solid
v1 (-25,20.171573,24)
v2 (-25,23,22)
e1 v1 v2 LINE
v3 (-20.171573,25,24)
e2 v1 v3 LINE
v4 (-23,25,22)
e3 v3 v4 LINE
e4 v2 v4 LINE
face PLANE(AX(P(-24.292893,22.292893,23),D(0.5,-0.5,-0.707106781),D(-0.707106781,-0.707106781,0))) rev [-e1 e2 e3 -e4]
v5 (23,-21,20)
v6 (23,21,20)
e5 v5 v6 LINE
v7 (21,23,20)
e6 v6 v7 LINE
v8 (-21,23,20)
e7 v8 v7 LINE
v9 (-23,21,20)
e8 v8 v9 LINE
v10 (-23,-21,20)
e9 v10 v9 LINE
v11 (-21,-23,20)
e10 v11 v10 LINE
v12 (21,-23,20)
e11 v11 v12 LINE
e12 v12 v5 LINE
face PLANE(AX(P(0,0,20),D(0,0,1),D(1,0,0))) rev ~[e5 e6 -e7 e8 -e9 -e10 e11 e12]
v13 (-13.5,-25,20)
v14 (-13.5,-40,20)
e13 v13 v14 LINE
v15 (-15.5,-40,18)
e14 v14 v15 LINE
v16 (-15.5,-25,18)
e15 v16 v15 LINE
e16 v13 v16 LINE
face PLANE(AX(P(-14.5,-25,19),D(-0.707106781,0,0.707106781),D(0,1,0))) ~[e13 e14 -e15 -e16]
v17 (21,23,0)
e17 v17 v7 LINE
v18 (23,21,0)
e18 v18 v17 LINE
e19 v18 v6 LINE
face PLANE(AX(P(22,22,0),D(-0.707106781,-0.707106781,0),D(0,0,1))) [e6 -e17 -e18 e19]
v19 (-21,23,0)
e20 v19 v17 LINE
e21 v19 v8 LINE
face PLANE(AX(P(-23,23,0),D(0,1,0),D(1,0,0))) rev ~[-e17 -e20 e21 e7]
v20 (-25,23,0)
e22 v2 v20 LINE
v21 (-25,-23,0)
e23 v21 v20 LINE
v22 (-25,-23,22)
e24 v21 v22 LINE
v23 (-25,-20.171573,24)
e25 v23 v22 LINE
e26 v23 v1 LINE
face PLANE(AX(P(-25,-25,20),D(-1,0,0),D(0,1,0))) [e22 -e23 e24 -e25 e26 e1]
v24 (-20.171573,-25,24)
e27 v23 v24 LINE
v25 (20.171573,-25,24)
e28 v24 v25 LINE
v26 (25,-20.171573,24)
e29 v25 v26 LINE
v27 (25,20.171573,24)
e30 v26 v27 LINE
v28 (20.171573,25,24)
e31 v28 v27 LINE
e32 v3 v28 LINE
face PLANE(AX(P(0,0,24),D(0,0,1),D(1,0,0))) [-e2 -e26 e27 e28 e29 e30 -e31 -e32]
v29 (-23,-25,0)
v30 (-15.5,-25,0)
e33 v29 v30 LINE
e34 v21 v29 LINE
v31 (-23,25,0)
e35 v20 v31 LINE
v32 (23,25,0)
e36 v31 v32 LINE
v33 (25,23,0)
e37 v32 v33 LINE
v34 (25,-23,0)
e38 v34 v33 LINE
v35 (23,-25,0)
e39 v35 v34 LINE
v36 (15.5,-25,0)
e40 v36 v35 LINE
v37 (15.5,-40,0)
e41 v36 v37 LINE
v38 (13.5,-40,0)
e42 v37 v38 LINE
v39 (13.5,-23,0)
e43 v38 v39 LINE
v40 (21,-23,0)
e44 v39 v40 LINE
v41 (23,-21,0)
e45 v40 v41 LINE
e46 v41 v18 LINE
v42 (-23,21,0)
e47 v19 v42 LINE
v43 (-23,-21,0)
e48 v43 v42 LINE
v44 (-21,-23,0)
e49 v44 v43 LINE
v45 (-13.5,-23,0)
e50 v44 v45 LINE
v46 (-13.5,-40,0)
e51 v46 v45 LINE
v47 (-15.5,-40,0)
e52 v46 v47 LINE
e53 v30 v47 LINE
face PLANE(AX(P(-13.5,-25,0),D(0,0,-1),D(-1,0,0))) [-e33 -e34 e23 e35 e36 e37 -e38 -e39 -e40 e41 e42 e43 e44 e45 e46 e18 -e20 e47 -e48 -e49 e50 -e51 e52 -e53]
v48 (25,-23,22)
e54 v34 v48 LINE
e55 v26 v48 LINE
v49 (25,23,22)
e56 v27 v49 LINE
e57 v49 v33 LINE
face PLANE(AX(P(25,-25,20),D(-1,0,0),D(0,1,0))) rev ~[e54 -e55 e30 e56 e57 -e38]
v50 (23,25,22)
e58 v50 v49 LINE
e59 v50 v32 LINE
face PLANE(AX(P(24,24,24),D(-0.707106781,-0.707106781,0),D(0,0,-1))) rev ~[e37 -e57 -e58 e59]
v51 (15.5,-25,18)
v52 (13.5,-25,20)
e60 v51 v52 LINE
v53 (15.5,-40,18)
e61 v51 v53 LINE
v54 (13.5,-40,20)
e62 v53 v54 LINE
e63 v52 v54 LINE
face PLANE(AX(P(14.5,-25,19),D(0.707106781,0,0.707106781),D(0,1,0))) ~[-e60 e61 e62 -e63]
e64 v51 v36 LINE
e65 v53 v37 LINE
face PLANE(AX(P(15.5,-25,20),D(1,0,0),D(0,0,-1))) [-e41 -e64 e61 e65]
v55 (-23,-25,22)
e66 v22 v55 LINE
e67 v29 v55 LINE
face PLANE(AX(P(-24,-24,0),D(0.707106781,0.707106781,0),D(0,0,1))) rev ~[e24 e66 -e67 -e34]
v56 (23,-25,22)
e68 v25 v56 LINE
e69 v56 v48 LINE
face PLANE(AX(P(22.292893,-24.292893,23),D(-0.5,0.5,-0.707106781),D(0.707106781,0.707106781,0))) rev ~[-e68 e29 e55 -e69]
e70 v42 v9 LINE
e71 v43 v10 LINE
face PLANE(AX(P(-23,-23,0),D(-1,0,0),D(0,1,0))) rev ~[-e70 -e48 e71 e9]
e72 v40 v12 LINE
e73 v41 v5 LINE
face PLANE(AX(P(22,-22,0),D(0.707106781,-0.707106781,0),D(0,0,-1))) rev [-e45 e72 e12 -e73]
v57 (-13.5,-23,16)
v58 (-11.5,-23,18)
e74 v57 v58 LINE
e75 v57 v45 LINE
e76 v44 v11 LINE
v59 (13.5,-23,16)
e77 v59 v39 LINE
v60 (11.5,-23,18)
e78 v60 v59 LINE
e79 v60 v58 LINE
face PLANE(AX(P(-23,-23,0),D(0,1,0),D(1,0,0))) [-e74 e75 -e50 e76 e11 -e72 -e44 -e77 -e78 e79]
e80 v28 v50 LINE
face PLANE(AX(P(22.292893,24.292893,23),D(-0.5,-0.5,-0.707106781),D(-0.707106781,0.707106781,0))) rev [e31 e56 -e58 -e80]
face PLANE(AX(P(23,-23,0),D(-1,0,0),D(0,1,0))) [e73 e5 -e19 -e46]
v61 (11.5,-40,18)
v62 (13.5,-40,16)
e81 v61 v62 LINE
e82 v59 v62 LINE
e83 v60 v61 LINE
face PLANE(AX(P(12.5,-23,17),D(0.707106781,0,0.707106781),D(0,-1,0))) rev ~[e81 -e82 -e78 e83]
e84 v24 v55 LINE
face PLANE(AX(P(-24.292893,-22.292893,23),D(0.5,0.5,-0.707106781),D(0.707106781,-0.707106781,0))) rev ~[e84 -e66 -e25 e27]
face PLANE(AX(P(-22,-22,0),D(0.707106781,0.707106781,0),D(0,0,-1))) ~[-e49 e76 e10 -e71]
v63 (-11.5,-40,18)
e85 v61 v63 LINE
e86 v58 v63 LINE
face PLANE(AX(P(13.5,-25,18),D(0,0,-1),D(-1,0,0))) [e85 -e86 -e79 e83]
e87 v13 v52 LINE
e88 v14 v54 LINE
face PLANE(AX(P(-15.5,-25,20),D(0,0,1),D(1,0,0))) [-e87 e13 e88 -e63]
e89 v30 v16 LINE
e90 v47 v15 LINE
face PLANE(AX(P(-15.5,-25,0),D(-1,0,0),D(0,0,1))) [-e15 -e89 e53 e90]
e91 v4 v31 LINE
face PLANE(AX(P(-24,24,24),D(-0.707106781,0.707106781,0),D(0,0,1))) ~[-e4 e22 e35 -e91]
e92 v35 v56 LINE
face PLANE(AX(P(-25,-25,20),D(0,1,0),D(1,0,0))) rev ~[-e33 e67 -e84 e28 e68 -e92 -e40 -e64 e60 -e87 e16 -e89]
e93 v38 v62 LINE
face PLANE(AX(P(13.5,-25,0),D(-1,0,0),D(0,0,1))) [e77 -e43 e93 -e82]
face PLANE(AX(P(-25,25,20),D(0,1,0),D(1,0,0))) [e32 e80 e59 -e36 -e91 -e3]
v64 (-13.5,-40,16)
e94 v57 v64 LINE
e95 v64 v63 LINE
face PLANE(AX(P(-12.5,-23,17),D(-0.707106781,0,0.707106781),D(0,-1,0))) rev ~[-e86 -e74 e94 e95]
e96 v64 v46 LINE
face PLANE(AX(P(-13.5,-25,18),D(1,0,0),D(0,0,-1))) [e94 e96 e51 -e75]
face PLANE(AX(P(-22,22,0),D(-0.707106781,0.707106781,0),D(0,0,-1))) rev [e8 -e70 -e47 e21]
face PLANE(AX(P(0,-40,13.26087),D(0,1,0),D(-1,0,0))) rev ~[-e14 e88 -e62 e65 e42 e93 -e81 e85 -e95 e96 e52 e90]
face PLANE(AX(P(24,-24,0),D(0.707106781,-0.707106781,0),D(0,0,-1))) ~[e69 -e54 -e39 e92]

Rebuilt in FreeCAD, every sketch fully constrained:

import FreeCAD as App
import Part
import Sketcher
Q = App.Units.Quantity


def edges_at(feature, points):
    """Names of the edges that pass closest to the given points."""
    edges = feature.Shape.Edges
    near = lambda p: min(range(len(edges)), key=lambda i: edges[i].distToShape(Part.Vertex(*p))[0])
    return sorted({f"Edge{near(p) + 1}" for p in points})

doc = App.newDocument("Part")
body = doc.addObject("PartDesign::Body", "Body")

# Sketch on XY plane
sketch1 = body.newObject("Sketcher::SketchObject", "Sketch")
sketch1.AttachmentSupport = (doc.getObject("XY_Plane"), [""])
sketch1.MapMode = "FlatFace"
sketch1.addGeometry(Part.LineSegment(App.Vector(-25, 25, 0), App.Vector(-25, -25, 0)), False)
sketch1.addGeometry(Part.LineSegment(App.Vector(-25, -25, 0), App.Vector(25, -25, 0)), False)
sketch1.addGeometry(Part.LineSegment(App.Vector(25, -25, 0), App.Vector(25, 25, 0)), False)
sketch1.addGeometry(Part.LineSegment(App.Vector(25, 25, 0), App.Vector(-25, 25, 0)), False)
sketch1.addGeometry(Part.LineSegment(App.Vector(23, -23, 0), App.Vector(-23, -23, 0)), False)
sketch1.addGeometry(Part.LineSegment(App.Vector(-23, -23, 0), App.Vector(-23, 23, 0)), False)
sketch1.addGeometry(Part.LineSegment(App.Vector(-23, 23, 0), App.Vector(23, 23, 0)), False)
sketch1.addGeometry(Part.LineSegment(App.Vector(23, 23, 0), App.Vector(23, -23, 0)), False)
sketch1.addConstraint(Sketcher.Constraint("Coincident", 0, 2, 1, 1))
sketch1.addConstraint(Sketcher.Constraint("Coincident", 1, 2, 2, 1))
sketch1.addConstraint(Sketcher.Constraint("Coincident", 2, 2, 3, 1))
sketch1.addConstraint(Sketcher.Constraint("Coincident", 3, 2, 0, 1))
sketch1.addConstraint(Sketcher.Constraint("Coincident", 4, 2, 5, 1))
sketch1.addConstraint(Sketcher.Constraint("Coincident", 5, 2, 6, 1))
sketch1.addConstraint(Sketcher.Constraint("Coincident", 6, 2, 7, 1))
sketch1.addConstraint(Sketcher.Constraint("Coincident", 7, 2, 4, 1))
sketch1.addConstraint(Sketcher.Constraint("Vertical", 0))
sketch1.addConstraint(Sketcher.Constraint("Horizontal", 1))
sketch1.addConstraint(Sketcher.Constraint("Vertical", 2))
sketch1.addConstraint(Sketcher.Constraint("Horizontal", 3))
sketch1.addConstraint(Sketcher.Constraint("Horizontal", 4))
sketch1.addConstraint(Sketcher.Constraint("Vertical", 5))
sketch1.addConstraint(Sketcher.Constraint("Horizontal", 6))
sketch1.addConstraint(Sketcher.Constraint("Vertical", 7))
sketch1.addConstraint(Sketcher.Constraint("Symmetric", 0, 2, 2, 2, -1, 1))
sketch1.addConstraint(Sketcher.Constraint("Symmetric", 4, 2, 6, 2, -1, 1))
sketch1.addConstraint(Sketcher.Constraint("Equal", 3, 0))
sketch1.addConstraint(Sketcher.Constraint("Equal", 6, 5))
sketch1.addConstraint(Sketcher.Constraint("DistanceX", 1, 1, 1, 2, Q("50 mm")))
sketch1.addConstraint(Sketcher.Constraint("DistanceX", 4, 2, 4, 1, Q("46 mm")))
pad1 = body.newObject("PartDesign::Pad", "Pad")
pad1.Profile = sketch1
pad1.Length = 20

# Sketch on XY plane
sketch2 = body.newObject("Sketcher::SketchObject", "Sketch001")
sketch2.AttachmentSupport = (doc.getObject("XY_Plane"), [""])
sketch2.MapMode = "FlatFace"
sketch2.AttachmentOffset = App.Placement(App.Vector(0, 0, 20), App.Rotation())
sketch2.addGeometry(Part.LineSegment(App.Vector(-25, 25, 0), App.Vector(-25, -25, 0)), False)
sketch2.addGeometry(Part.LineSegment(App.Vector(-25, -25, 0), App.Vector(25, -25, 0)), False)
sketch2.addGeometry(Part.LineSegment(App.Vector(25, -25, 0), App.Vector(25, 25, 0)), False)
sketch2.addGeometry(Part.LineSegment(App.Vector(25, 25, 0), App.Vector(-25, 25, 0)), False)
sketch2.addConstraint(Sketcher.Constraint("Coincident", 0, 2, 1, 1))
sketch2.addConstraint(Sketcher.Constraint("Coincident", 1, 2, 2, 1))
sketch2.addConstraint(Sketcher.Constraint("Coincident", 2, 2, 3, 1))
sketch2.addConstraint(Sketcher.Constraint("Coincident", 3, 2, 0, 1))
sketch2.addConstraint(Sketcher.Constraint("Vertical", 0))
sketch2.addConstraint(Sketcher.Constraint("Horizontal", 1))
sketch2.addConstraint(Sketcher.Constraint("Vertical", 2))
sketch2.addConstraint(Sketcher.Constraint("Horizontal", 3))
sketch2.addConstraint(Sketcher.Constraint("Symmetric", 0, 2, 2, 2, -1, 1))
sketch2.addConstraint(Sketcher.Constraint("Equal", 3, 0))
sketch2.addConstraint(Sketcher.Constraint("DistanceX", 1, 1, 1, 2, Q("50 mm")))
pad2 = body.newObject("PartDesign::Pad", "Pad001")
pad2.Profile = sketch2
pad2.Length = 4

# Sketch on XZ plane
sketch3 = body.newObject("Sketcher::SketchObject", "Sketch002")
sketch3.AttachmentSupport = (doc.getObject("XZ_Plane"), [""])
sketch3.MapMode = "FlatFace"
sketch3.AttachmentOffset = App.Placement(App.Vector(0, 0, 25), App.Rotation())
sketch3.addGeometry(Part.LineSegment(App.Vector(-14, 18, 0), App.Vector(-14, 0, 0)), False)
sketch3.addGeometry(Part.LineSegment(App.Vector(-14, 0, 0), App.Vector(14, 0, 0)), False)
sketch3.addGeometry(Part.LineSegment(App.Vector(14, 0, 0), App.Vector(14, 18, 0)), False)
sketch3.addGeometry(Part.LineSegment(App.Vector(14, 18, 0), App.Vector(-14, 18, 0)), False)
sketch3.addConstraint(Sketcher.Constraint("Coincident", 0, 2, 1, 1))
sketch3.addConstraint(Sketcher.Constraint("Coincident", 1, 2, 2, 1))
sketch3.addConstraint(Sketcher.Constraint("Coincident", 2, 2, 3, 1))
sketch3.addConstraint(Sketcher.Constraint("Coincident", 3, 2, 0, 1))
sketch3.addConstraint(Sketcher.Constraint("Vertical", 0))
sketch3.addConstraint(Sketcher.Constraint("Horizontal", 1))
sketch3.addConstraint(Sketcher.Constraint("Vertical", 2))
sketch3.addConstraint(Sketcher.Constraint("Horizontal", 3))
sketch3.addConstraint(Sketcher.Constraint("Symmetric", 0, 2, 1, 2, -1, 1))
sketch3.addConstraint(Sketcher.Constraint("DistanceX", 1, 1, 1, 2, Q("27 mm")))
sketch3.addConstraint(Sketcher.Constraint("DistanceY", 0, 2, 0, 1, Q("18 mm")))
pocket1 = body.newObject("PartDesign::Pocket", "Pocket")
pocket1.Profile = sketch3
pocket1.Length = 5
doc.recompute()

chamfer = body.newObject("PartDesign::Chamfer", "Chamfer")
chamfer.Base = (pocket1, edges_at(pocket1, [
    (-25, -25, 12),
    (-25, -25, 12),
    (25, -25, 12),
    (25, -25, 12),
    (25, 25, 12),
    (25, 25, 12),
    (-25, 25, 12),
    (-25, 25, 12),
    (-23, 23, 10),
    (23, -23, 10),
    (23, 23, 10),
    (-23, -23, 10),
]))
chamfer.Size = 2
doc.recompute()

chamfer2 = body.newObject("PartDesign::Chamfer", "Chamfer001")
chamfer2.Base = (chamfer, edges_at(chamfer, [
    (24, -24, 24),
    (-24, -24, 24),
    (24, 24, 24),
    (-24, 24, 24),
]))
chamfer2.Size = 2

# Sketch on XZ plane
sketch4 = body.newObject("Sketcher::SketchObject", "Sketch003")
sketch4.AttachmentSupport = (doc.getObject("XZ_Plane"), [""])
sketch4.MapMode = "FlatFace"
sketch4.AttachmentOffset = App.Placement(App.Vector(0, 0, 25), App.Rotation())
sketch4.addGeometry(Part.LineSegment(App.Vector(-13.5, 0, 0), App.Vector(-13.5, 18, 0)), False)
sketch4.addGeometry(Part.LineSegment(App.Vector(-13.5, 18, 0), App.Vector(13.5, 18, 0)), False)
sketch4.addGeometry(Part.LineSegment(App.Vector(13.5, 18, 0), App.Vector(13.5, 0, 0)), False)
sketch4.addGeometry(Part.LineSegment(App.Vector(13.5, 0, 0), App.Vector(15.5, 0, 0)), False)
sketch4.addGeometry(Part.LineSegment(App.Vector(15.5, 0, 0), App.Vector(15.5, 20, 0)), False)
sketch4.addGeometry(Part.LineSegment(App.Vector(15.5, 20, 0), App.Vector(-15.5, 20, 0)), False)
sketch4.addGeometry(Part.LineSegment(App.Vector(-15.5, 20, 0), App.Vector(-15.5, 0, 0)), False)
sketch4.addGeometry(Part.LineSegment(App.Vector(-15.5, 0, 0), App.Vector(-13.5, 0, 0)), False)
sketch4.addConstraint(Sketcher.Constraint("Coincident", 0, 2, 1, 1))
sketch4.addConstraint(Sketcher.Constraint("Coincident", 1, 2, 2, 1))
sketch4.addConstraint(Sketcher.Constraint("Coincident", 2, 2, 3, 1))
sketch4.addConstraint(Sketcher.Constraint("Coincident", 3, 2, 4, 1))
sketch4.addConstraint(Sketcher.Constraint("Coincident", 4, 2, 5, 1))
sketch4.addConstraint(Sketcher.Constraint("Coincident", 5, 2, 6, 1))
sketch4.addConstraint(Sketcher.Constraint("Coincident", 6, 2, 7, 1))
sketch4.addConstraint(Sketcher.Constraint("Coincident", 7, 2, 0, 1))
sketch4.addConstraint(Sketcher.Constraint("Vertical", 0))
sketch4.addConstraint(Sketcher.Constraint("Horizontal", 1))
sketch4.addConstraint(Sketcher.Constraint("Vertical", 2))
sketch4.addConstraint(Sketcher.Constraint("Horizontal", 3))
sketch4.addConstraint(Sketcher.Constraint("Vertical", 4))
sketch4.addConstraint(Sketcher.Constraint("Horizontal", 5))
sketch4.addConstraint(Sketcher.Constraint("Vertical", 6))
sketch4.addConstraint(Sketcher.Constraint("Horizontal", 7))
sketch4.addConstraint(Sketcher.Constraint("Symmetric", 3, 2, 6, 2, -1, 1))
sketch4.addConstraint(Sketcher.Constraint("Symmetric", 2, 2, 7, 2, -2))
sketch4.addConstraint(Sketcher.Constraint("DistanceX", 1, 1, 1, 2, Q("27 mm")))
sketch4.addConstraint(Sketcher.Constraint("DistanceX", 3, 1, 3, 2, Q("2 mm")))
sketch4.addConstraint(Sketcher.Constraint("DistanceY", 0, 1, 0, 2, Q("18 mm")))
sketch4.addConstraint(Sketcher.Constraint("DistanceY", 4, 1, 4, 2, Q("20 mm")))
pad3 = body.newObject("PartDesign::Pad", "Pad002")
pad3.Profile = sketch4
pad3.Length = 15
doc.recompute()

chamfer3 = body.newObject("PartDesign::Chamfer", "Chamfer002")
chamfer3.Base = (pad3, edges_at(pad3, [
    (13.5, -31.5, 18),
    (-13.5, -31.5, 18),
    (15.5, -32.5, 20),
    (-15.5, -32.5, 20),
]))
chamfer3.Size = 2

doc.recompute()
